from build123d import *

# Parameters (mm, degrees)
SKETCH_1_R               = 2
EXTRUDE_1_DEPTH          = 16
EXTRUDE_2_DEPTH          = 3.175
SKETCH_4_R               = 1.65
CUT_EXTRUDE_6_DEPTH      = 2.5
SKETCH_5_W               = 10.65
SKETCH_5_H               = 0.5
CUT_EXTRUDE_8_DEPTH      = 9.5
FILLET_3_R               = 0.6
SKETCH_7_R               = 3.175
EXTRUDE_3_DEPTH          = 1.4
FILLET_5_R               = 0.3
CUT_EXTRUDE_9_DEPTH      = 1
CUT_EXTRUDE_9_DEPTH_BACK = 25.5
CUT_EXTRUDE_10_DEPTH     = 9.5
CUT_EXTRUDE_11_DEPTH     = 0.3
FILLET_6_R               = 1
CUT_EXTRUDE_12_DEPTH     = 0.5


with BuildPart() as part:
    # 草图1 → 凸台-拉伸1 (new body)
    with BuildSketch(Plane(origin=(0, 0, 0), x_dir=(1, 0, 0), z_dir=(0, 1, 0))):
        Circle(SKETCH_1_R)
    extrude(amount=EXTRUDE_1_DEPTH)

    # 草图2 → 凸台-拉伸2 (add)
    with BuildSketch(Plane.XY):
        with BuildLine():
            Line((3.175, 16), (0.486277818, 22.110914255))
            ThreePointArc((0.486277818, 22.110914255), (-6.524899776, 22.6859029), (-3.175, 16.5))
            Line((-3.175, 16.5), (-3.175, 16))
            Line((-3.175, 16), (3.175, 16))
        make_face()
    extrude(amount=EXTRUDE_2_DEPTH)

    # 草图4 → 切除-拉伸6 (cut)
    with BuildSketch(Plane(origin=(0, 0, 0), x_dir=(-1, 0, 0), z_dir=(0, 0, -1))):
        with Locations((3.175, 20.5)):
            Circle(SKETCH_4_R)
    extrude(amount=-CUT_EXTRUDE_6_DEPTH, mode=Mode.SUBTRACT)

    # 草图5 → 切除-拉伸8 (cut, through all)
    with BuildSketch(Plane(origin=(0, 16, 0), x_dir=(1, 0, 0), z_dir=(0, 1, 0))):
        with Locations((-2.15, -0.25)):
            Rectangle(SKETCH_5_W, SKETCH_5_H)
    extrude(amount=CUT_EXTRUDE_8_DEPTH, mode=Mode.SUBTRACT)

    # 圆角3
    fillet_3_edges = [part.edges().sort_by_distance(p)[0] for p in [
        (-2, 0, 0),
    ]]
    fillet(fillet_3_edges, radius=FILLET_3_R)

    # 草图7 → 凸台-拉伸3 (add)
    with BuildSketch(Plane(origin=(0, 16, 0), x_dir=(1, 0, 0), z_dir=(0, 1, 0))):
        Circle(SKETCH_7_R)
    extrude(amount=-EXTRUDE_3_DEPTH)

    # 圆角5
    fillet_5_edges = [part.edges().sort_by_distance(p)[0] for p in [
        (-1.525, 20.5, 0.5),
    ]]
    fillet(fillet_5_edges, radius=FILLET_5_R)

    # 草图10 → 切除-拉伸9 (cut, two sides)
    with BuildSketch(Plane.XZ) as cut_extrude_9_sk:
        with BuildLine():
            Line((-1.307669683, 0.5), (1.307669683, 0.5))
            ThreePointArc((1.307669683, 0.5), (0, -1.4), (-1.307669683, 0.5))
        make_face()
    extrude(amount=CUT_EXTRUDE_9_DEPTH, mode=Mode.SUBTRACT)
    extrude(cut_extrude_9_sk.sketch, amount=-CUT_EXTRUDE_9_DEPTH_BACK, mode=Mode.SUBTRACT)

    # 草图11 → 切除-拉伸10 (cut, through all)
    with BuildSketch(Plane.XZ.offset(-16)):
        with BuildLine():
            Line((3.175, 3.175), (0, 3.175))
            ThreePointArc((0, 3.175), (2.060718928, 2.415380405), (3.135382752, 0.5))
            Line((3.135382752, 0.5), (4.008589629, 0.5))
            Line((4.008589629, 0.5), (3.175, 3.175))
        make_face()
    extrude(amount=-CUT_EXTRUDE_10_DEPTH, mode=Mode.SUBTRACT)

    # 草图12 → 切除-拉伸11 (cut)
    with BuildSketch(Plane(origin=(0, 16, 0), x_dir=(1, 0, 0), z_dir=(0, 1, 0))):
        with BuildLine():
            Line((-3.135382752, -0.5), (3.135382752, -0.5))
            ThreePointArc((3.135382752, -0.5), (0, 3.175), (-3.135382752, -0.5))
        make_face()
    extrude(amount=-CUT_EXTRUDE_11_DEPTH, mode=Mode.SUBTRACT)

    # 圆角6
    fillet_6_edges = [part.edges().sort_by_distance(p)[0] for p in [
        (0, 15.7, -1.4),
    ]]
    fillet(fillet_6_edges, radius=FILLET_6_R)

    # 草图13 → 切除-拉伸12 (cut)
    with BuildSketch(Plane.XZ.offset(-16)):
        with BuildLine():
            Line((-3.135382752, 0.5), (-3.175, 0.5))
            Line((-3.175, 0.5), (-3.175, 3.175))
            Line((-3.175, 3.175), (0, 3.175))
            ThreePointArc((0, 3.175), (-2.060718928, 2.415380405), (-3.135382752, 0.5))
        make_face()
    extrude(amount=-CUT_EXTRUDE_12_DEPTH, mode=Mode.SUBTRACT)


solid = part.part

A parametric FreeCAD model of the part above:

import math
import FreeCAD as App
import Part
import Sketcher
from FreeCAD import Vector
Q = App.Units.Quantity


def edges_at(feature, points):
    """Names of the edges that pass closest to the given points."""
    edges = feature.Shape.Edges
    near = lambda p: min(range(len(edges)), key=lambda i: edges[i].distToShape(Part.Vertex(*p))[0])
    return sorted({f"Edge{near(p) + 1}" for p in points})

doc = App.newDocument("Part")
body = doc.addObject("PartDesign::Body", "Body")

# Sketch on XZ plane
sketch1 = body.newObject("Sketcher::SketchObject", "Sketch")
sketch1.AttachmentSupport = (doc.getObject("XZ_Plane"), [""])
sketch1.MapMode = "FlatFace"
sketch1.addGeometry(Part.Circle(Vector(0, 0, 0), Vector(0, 0, 1), 2), False)
sketch1.addConstraint(Sketcher.Constraint("Coincident", 0, 3, -1, 1))
sketch1.addConstraint(Sketcher.Constraint("Diameter", 0, Q("4 mm")))
pad1 = body.newObject("PartDesign::Pad", "Pad")
pad1.Profile = sketch1
pad1.Length = 16
pad1.Reversed = True

# Sketch on XY plane
sketch2 = body.newObject("Sketcher::SketchObject", "Sketch001")
sketch2.AttachmentSupport = (doc.getObject("XY_Plane"), [""])
sketch2.MapMode = "FlatFace"
sketch2.addGeometry(Part.LineSegment(Vector(3.2, 16, 0), Vector(0.5, 22.1, 0)), False)
sketch2.addGeometry(Part.ArcOfCircle(Part.Circle(Vector(-3.2, 20.5, 0), Vector(0, 0, 1), 4), math.radians(24), math.radians(270)), False)
sketch2.addGeometry(Part.LineSegment(Vector(-3.2, 16.5, 0), Vector(-3.2, 16, 0)), False)
sketch2.addGeometry(Part.LineSegment(Vector(-3.2, 16, 0), Vector(3.2, 16, 0)), False)
sketch2.addConstraint(Sketcher.Constraint("Tangent", 0, 2, 1, 1))
sketch2.addConstraint(Sketcher.Constraint("Coincident", 1, 2, 2, 1))
sketch2.addConstraint(Sketcher.Constraint("Coincident", 2, 2, 3, 1))
sketch2.addConstraint(Sketcher.Constraint("Coincident", 3, 2, 0, 1))
sketch2.addConstraint(Sketcher.Constraint("Vertical", 2))
sketch2.addConstraint(Sketcher.Constraint("Horizontal", 3))
sketch2.addConstraint(Sketcher.Constraint("Radius", 1, Q("4 mm")))
sketch2.addConstraint(Sketcher.Constraint("DistanceY", 2, 2, 2, 1, Q("0.5 mm")))
sketch2.addConstraint(Sketcher.Constraint("DistanceY", -1, 1, 2, 2, Q("16 mm")))
sketch2.addConstraint(Sketcher.Constraint("DistanceX", 3, 1, 3, 2, Q("6.35 mm")))
sketch2.addConstraint(Sketcher.Constraint("DistanceX", 1, 3, 3, 2, Q("6.35 mm")))
sketch2.addConstraint(Sketcher.Constraint("DistanceX", 1, 3, -1, 1, Q("3.175 mm")))
pad2 = body.newObject("PartDesign::Pad", "Pad001")
pad2.Profile = sketch2
pad2.Length = 3.175

# Sketch on XY plane
sketch3 = body.newObject("Sketcher::SketchObject", "Sketch002")
sketch3.AttachmentSupport = (doc.getObject("XY_Plane"), [""])
sketch3.MapMode = "FlatFace"
sketch3.addGeometry(Part.Circle(Vector(-3.2, 20.5, 0), Vector(0, 0, 1), 1.6), False)
sketch3.addConstraint(Sketcher.Constraint("Diameter", 0, Q("3.3 mm")))
sketch3.addConstraint(Sketcher.Constraint("DistanceY", -1, 1, 0, 3, Q("20.5 mm")))
sketch3.addConstraint(Sketcher.Constraint("DistanceX", 0, 3, -1, 1, Q("3.175 mm")))
pocket1 = body.newObject("PartDesign::Pocket", "Pocket")
pocket1.Profile = sketch3
pocket1.Length = 2.5
pocket1.Reversed = True

# Sketch on XZ plane
sketch4 = body.newObject("Sketcher::SketchObject", "Sketch003")
sketch4.AttachmentSupport = (doc.getObject("XZ_Plane"), [""])
sketch4.MapMode = "FlatFace"
sketch4.AttachmentOffset = App.Placement(Vector(0, 0, -16), App.Rotation())
sketch4.addGeometry(Part.LineSegment(Vector(-7.5, 0, 0), Vector(-7.5, 0.5, 0)), False)
sketch4.addGeometry(Part.LineSegment(Vector(-7.5, 0.5, 0), Vector(3.2, 0.5, 0)), False)
sketch4.addGeometry(Part.LineSegment(Vector(3.2, 0.5, 0), Vector(3.2, 0, 0)), False)
sketch4.addGeometry(Part.LineSegment(Vector(3.2, 0, 0), Vector(-7.5, 0, 0)), False)
sketch4.addConstraint(Sketcher.Constraint("Coincident", 0, 2, 1, 1))
sketch4.addConstraint(Sketcher.Constraint("Coincident", 1, 2, 2, 1))
sketch4.addConstraint(Sketcher.Constraint("Coincident", 2, 2, 3, 1))
sketch4.addConstraint(Sketcher.Constraint("Coincident", 3, 2, 0, 1))
sketch4.addConstraint(Sketcher.Constraint("Vertical", 0))
sketch4.addConstraint(Sketcher.Constraint("Horizontal", 1))
sketch4.addConstraint(Sketcher.Constraint("Vertical", 2))
sketch4.addConstraint(Sketcher.Constraint("Horizontal", 3))
sketch4.addConstraint(Sketcher.Constraint("PointOnObject", 2, 2, -1))
sketch4.addConstraint(Sketcher.Constraint("DistanceY", 0, 1, 0, 2, Q("0.5 mm")))
sketch4.addConstraint(Sketcher.Constraint("DistanceX", 1, 1, 1, 2, Q("10.65 mm")))
sketch4.addConstraint(Sketcher.Constraint("DistanceX", 0, 2, -1, 1, Q("7.475 mm")))
pocket2 = body.newObject("PartDesign::Pocket", "Pocket001")
pocket2.Profile = sketch4
pocket2.Type = "ThroughAll"
doc.recompute()

fillet = body.newObject("PartDesign::Fillet", "Fillet")
fillet.Base = (pocket2, edges_at(pocket2, [(-2, 0, 0)]))
fillet.Radius = 0.6

# Sketch on XZ plane
sketch5 = body.newObject("Sketcher::SketchObject", "Sketch004")
sketch5.AttachmentSupport = (doc.getObject("XZ_Plane"), [""])
sketch5.MapMode = "FlatFace"
sketch5.AttachmentOffset = App.Placement(Vector(0, 0, -16), App.Rotation())
sketch5.addGeometry(Part.Circle(Vector(0, 0, 0), Vector(0, 0, 1), 3.2), False)
sketch5.addConstraint(Sketcher.Constraint("Coincident", 0, 3, -1, 1))
sketch5.addConstraint(Sketcher.Constraint("Diameter", 0, Q("6.35 mm")))
pad3 = body.newObject("PartDesign::Pad", "Pad002")
pad3.Profile = sketch5
pad3.Length = 1.4
doc.recompute()

fillet2 = body.newObject("PartDesign::Fillet", "Fillet001")
fillet2.Base = (pad3, edges_at(pad3, [(-1.525, 20.5, 0.5)]))
fillet2.Radius = 0.3

# Sketch on XZ plane
sketch6 = body.newObject("Sketcher::SketchObject", "Sketch005")
sketch6.AttachmentSupport = (doc.getObject("XZ_Plane"), [""])
sketch6.MapMode = "FlatFace"
sketch6.addGeometry(Part.LineSegment(Vector(1.3, 0.5, 0), Vector(-1.3, 0.5, 0)), False)
sketch6.addGeometry(Part.ArcOfCircle(Part.Circle(Vector(0, 0, 0), Vector(0, 0, 1), 1.4), math.radians(159), math.radians(381)), False)
sketch6.addConstraint(Sketcher.Constraint("Coincident", 0, 1, 1, 2))
sketch6.addConstraint(Sketcher.Constraint("Coincident", 1, 1, 0, 2))
sketch6.addConstraint(Sketcher.Constraint("Horizontal", 0))
sketch6.addConstraint(Sketcher.Constraint("Coincident", 1, 3, -1, 1))
sketch6.addConstraint(Sketcher.Constraint("Radius", 1, Q("1.4 mm")))
sketch6.addConstraint(Sketcher.Constraint("DistanceY", -1, 1, 0, 1, Q("0.5 mm")))
pocket3 = body.newObject("PartDesign::Pocket", "Pocket002")
pocket3.Profile = sketch6
pocket3.Type = "ThroughAll"
pocket3.Midplane = True

# Sketch on XZ plane
sketch7 = body.newObject("Sketcher::SketchObject", "Sketch006")
sketch7.AttachmentSupport = (doc.getObject("XZ_Plane"), [""])
sketch7.MapMode = "FlatFace"
sketch7.AttachmentOffset = App.Placement(Vector(0, 0, -16), App.Rotation())
sketch7.addGeometry(Part.LineSegment(Vector(3.2, 3.2, 0), Vector(0, 3.2, 0)), False)
sketch7.addGeometry(Part.ArcOfCircle(Part.Circle(Vector(0, 0, 0), Vector(0, 0, 1), 3.2), math.radians(9), math.radians(90)), False)
sketch7.addGeometry(Part.LineSegment(Vector(3.1, 0.5, 0), Vector(4, 0.5, 0)), False)
sketch7.addGeometry(Part.LineSegment(Vector(4, 0.5, 0), Vector(3.2, 3.2, 0)), False)
sketch7.addConstraint(Sketcher.Constraint("Tangent", 0, 2, 1, 2))
sketch7.addConstraint(Sketcher.Constraint("Coincident", 1, 1, 2, 1))
sketch7.addConstraint(Sketcher.Constraint("Coincident", 2, 2, 3, 1))
sketch7.addConstraint(Sketcher.Constraint("Coincident", 3, 2, 0, 1))
sketch7.addConstraint(Sketcher.Constraint("Horizontal", 0))
sketch7.addConstraint(Sketcher.Constraint("Horizontal", 2))
sketch7.addConstraint(Sketcher.Constraint("Coincident", 1, 3, -1, 1))
sketch7.addConstraint(Sketcher.Constraint("Radius", 1, Q("3.175 mm")))
sketch7.addConstraint(Sketcher.Constraint("DistanceY", -1, 1, 1, 1, Q("0.5 mm")))
sketch7.addConstraint(Sketcher.Constraint("DistanceX", 0, 2, 0, 1, Q("3.175 mm")))
sketch7.addConstraint(Sketcher.Constraint("DistanceX", 2, 1, 2, 2, Q("0.873207 mm")))
pocket4 = body.newObject("PartDesign::Pocket", "Pocket003")
pocket4.Profile = sketch7
pocket4.Type = "ThroughAll"

# Sketch on XZ plane
sketch8 = body.newObject("Sketcher::SketchObject", "Sketch007")
sketch8.AttachmentSupport = (doc.getObject("XZ_Plane"), [""])
sketch8.MapMode = "FlatFace"
sketch8.AttachmentOffset = App.Placement(Vector(0, 0, -16), App.Rotation())
sketch8.addGeometry(Part.LineSegment(Vector(-3.1, 0.5, 0), Vector(3.1, 0.5, 0)), False)
sketch8.addGeometry(Part.ArcOfCircle(Part.Circle(Vector(0, 0, 0), Vector(0, 0, 1), 3.2), math.radians(171), math.radians(369)), False)
sketch8.addConstraint(Sketcher.Constraint("Coincident", 0, 1, 1, 1))
sketch8.addConstraint(Sketcher.Constraint("Coincident", 1, 2, 0, 2))
sketch8.addConstraint(Sketcher.Constraint("Horizontal", 0))
sketch8.addConstraint(Sketcher.Constraint("Coincident", 1, 3, -1, 1))
sketch8.addConstraint(Sketcher.Constraint("Radius", 1, Q("3.175 mm")))
sketch8.addConstraint(Sketcher.Constraint("DistanceY", -1, 1, 0, 1, Q("0.5 mm")))
pocket5 = body.newObject("PartDesign::Pocket", "Pocket004")
pocket5.Profile = sketch8
pocket5.Length = 0.3
pocket5.Reversed = True
doc.recompute()

fillet3 = body.newObject("PartDesign::Fillet", "Fillet002")
fillet3.Base = (pocket5, edges_at(pocket5, [(0, 15.7, -1.4)]))
fillet3.Radius = 1

# Sketch on XZ plane
sketch9 = body.newObject("Sketcher::SketchObject", "Sketch008")
sketch9.AttachmentSupport = (doc.getObject("XZ_Plane"), [""])
sketch9.MapMode = "FlatFace"
sketch9.AttachmentOffset = App.Placement(Vector(0, 0, -16), App.Rotation())
sketch9.addGeometry(Part.LineSegment(Vector(-3.175, 0.5, 0), Vector(-3.135, 0.5, 0)), False)
sketch9.addGeometry(Part.ArcOfCircle(Part.Circle(Vector(0, 0, 0), Vector(0, 0, 1), 3.175), math.radians(90), math.radians(171)), False)
sketch9.addGeometry(Part.LineSegment(Vector(0, 3.175, 0), Vector(-3.175, 3.175, 0)), False)
sketch9.addGeometry(Part.LineSegment(Vector(-3.175, 3.175, 0), Vector(-3.175, 0.5, 0)), False)
sketch9.addConstraint(Sketcher.Constraint("Coincident", 0, 2, 1, 2))
sketch9.addConstraint(Sketcher.Constraint("Tangent", 1, 1, 2, 1))
sketch9.addConstraint(Sketcher.Constraint("Coincident", 2, 2, 3, 1))
sketch9.addConstraint(Sketcher.Constraint("Coincident", 3, 2, 0, 1))
sketch9.addConstraint(Sketcher.Constraint("Horizontal", 0))
sketch9.addConstraint(Sketcher.Constraint("Horizontal", 2))
sketch9.addConstraint(Sketcher.Constraint("Vertical", 3))
sketch9.addConstraint(Sketcher.Constraint("Coincident", 1, 3, -1, 1))
sketch9.addConstraint(Sketcher.Constraint("Radius", 1, Q("3.175 mm")))
sketch9.addConstraint(Sketcher.Constraint("DistanceY", -1, 1, 0, 2, Q("0.5 mm")))
sketch9.addConstraint(Sketcher.Constraint("DistanceX", 2, 2, 2, 1, Q("3.175 mm")))
pocket6 = body.newObject("PartDesign::Pocket", "Pocket005")
pocket6.Profile = sketch9
pocket6.Length = 0.5

doc.recompute()
